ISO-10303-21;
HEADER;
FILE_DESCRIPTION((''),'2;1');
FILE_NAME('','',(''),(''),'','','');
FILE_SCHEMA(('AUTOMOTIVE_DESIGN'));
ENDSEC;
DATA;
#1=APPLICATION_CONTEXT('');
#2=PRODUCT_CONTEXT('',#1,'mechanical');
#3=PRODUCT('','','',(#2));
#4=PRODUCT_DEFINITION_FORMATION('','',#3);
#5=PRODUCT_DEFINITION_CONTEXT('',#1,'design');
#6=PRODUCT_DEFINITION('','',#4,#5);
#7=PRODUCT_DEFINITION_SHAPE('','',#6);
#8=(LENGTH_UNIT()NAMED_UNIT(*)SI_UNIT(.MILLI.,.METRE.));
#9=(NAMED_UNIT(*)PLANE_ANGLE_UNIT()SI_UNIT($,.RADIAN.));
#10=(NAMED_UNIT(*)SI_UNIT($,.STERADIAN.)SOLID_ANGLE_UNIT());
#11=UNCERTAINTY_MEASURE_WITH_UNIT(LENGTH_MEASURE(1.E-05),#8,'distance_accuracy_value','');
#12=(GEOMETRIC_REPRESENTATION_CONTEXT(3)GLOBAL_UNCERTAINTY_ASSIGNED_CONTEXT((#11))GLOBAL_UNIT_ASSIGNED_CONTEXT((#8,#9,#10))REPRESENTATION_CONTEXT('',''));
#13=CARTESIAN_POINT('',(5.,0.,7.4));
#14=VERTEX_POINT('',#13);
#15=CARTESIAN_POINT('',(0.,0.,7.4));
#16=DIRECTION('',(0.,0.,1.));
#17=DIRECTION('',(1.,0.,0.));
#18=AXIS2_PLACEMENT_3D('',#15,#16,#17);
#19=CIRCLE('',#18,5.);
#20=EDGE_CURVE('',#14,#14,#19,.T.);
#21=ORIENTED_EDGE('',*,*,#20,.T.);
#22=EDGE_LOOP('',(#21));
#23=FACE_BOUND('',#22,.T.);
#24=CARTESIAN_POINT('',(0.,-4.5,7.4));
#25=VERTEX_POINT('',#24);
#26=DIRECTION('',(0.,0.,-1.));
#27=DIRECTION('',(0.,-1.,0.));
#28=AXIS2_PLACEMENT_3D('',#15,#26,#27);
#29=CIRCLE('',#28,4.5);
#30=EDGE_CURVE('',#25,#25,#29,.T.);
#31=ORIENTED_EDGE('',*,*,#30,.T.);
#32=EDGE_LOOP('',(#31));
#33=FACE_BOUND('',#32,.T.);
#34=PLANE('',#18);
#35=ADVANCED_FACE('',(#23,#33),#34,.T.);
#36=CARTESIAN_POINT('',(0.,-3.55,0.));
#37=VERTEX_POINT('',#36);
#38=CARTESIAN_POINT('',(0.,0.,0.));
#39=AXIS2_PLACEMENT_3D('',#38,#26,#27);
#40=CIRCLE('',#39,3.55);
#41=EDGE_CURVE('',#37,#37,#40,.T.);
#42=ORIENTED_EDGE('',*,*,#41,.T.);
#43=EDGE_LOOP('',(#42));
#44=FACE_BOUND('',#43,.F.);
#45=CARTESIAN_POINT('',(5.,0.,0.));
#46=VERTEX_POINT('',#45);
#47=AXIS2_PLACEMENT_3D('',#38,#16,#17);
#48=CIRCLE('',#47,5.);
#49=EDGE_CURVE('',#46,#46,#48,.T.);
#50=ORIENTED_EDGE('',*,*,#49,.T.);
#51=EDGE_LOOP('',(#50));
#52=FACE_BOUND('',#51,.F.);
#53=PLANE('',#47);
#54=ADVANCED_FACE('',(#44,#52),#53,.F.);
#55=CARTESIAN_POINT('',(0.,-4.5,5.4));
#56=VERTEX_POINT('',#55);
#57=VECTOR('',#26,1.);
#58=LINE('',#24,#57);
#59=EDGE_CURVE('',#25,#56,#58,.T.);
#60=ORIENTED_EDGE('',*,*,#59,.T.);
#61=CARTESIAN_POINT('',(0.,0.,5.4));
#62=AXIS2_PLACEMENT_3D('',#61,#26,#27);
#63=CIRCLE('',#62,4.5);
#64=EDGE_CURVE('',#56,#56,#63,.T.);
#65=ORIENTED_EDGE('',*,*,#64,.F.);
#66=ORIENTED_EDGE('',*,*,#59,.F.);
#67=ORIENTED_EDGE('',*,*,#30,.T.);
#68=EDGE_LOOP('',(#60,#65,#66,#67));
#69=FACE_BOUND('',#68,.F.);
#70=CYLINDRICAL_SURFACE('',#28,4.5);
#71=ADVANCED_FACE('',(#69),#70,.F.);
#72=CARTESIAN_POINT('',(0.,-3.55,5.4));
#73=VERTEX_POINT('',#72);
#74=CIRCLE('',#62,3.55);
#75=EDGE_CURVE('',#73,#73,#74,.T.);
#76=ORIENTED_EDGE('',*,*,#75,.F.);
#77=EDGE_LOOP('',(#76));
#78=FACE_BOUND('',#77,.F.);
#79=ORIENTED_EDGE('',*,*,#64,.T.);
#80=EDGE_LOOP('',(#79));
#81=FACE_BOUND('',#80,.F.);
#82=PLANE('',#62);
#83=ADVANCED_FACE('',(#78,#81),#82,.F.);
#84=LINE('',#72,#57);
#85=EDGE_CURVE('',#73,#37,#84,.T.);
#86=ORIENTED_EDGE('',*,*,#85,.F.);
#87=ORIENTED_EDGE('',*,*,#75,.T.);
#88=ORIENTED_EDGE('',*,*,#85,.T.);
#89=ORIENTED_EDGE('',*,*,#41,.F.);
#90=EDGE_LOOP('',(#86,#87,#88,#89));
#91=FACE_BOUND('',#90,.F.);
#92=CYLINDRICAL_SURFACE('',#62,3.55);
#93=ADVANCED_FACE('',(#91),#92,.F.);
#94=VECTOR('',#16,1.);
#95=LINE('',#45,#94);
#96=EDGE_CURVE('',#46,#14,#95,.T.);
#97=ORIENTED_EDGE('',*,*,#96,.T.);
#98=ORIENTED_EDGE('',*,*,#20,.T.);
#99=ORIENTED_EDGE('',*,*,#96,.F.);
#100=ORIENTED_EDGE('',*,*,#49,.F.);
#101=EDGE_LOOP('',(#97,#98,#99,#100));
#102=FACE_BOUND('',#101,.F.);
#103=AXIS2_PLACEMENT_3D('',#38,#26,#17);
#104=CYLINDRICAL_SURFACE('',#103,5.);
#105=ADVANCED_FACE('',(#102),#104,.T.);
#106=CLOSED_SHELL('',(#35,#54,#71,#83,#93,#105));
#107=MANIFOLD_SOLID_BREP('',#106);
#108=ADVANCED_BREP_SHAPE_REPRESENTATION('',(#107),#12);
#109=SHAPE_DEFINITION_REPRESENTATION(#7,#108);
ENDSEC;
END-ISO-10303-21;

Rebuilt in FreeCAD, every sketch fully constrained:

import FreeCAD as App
import Part
import Sketcher
from FreeCAD import Vector
Q = App.Units.Quantity

doc = App.newDocument("Part")
body = doc.addObject("PartDesign::Body", "Body")

sketch1 = doc.addObject("Sketcher::SketchObject", "Sketch")
body.addObject(sketch1)
sketch1.AttachmentSupport = (doc.XY_Plane, [""])
sketch1.MapMode = "FlatFace"
sketch1.addGeometry(Part.Circle(Vector(0, 0, 0), Vector(0, 0, 1), 5), False)
sketch1.addConstraint([
    Sketcher.Constraint("Coincident", 0, 3, -1, 1),
    Sketcher.Constraint("Diameter", 0, Q("10 mm")),
])
pad1 = doc.addObject("PartDesign::Pad", "Pad")
body.addObject(pad1)
pad1.Profile = sketch1
pad1.Length = 7.4

sketch2 = doc.addObject("Sketcher::SketchObject", "Sketch001")
body.addObject(sketch2)
sketch2.AttachmentSupport = (doc.XY_Plane, [""])
sketch2.MapMode = "FlatFace"
sketch2.AttachmentOffset = App.Placement(Vector(0, 0, 7.4), App.Rotation())
sketch2.addGeometry(Part.Circle(Vector(0, 0, 0), Vector(0, 0, 1), 3.5), False)
sketch2.addConstraint([
    Sketcher.Constraint("Coincident", 0, 3, -1, 1),
    Sketcher.Constraint("Diameter", 0, Q("7.1 mm")),
])
doc.recompute()
hole = doc.addObject("PartDesign::Hole", "Hole")
body.addObject(hole)
hole.Profile = sketch2
hole.ThreadType = "None"
hole.Diameter = 7.1
hole.DepthType = "Dimension"
hole.Depth = 8
hole.DrillPoint = "Angled"
hole.DrillPointAngle = 118
hole.HoleCutType = "Counterbore"
hole.HoleCutDiameter = 9
hole.HoleCutDepth = 2

doc.recompute()
